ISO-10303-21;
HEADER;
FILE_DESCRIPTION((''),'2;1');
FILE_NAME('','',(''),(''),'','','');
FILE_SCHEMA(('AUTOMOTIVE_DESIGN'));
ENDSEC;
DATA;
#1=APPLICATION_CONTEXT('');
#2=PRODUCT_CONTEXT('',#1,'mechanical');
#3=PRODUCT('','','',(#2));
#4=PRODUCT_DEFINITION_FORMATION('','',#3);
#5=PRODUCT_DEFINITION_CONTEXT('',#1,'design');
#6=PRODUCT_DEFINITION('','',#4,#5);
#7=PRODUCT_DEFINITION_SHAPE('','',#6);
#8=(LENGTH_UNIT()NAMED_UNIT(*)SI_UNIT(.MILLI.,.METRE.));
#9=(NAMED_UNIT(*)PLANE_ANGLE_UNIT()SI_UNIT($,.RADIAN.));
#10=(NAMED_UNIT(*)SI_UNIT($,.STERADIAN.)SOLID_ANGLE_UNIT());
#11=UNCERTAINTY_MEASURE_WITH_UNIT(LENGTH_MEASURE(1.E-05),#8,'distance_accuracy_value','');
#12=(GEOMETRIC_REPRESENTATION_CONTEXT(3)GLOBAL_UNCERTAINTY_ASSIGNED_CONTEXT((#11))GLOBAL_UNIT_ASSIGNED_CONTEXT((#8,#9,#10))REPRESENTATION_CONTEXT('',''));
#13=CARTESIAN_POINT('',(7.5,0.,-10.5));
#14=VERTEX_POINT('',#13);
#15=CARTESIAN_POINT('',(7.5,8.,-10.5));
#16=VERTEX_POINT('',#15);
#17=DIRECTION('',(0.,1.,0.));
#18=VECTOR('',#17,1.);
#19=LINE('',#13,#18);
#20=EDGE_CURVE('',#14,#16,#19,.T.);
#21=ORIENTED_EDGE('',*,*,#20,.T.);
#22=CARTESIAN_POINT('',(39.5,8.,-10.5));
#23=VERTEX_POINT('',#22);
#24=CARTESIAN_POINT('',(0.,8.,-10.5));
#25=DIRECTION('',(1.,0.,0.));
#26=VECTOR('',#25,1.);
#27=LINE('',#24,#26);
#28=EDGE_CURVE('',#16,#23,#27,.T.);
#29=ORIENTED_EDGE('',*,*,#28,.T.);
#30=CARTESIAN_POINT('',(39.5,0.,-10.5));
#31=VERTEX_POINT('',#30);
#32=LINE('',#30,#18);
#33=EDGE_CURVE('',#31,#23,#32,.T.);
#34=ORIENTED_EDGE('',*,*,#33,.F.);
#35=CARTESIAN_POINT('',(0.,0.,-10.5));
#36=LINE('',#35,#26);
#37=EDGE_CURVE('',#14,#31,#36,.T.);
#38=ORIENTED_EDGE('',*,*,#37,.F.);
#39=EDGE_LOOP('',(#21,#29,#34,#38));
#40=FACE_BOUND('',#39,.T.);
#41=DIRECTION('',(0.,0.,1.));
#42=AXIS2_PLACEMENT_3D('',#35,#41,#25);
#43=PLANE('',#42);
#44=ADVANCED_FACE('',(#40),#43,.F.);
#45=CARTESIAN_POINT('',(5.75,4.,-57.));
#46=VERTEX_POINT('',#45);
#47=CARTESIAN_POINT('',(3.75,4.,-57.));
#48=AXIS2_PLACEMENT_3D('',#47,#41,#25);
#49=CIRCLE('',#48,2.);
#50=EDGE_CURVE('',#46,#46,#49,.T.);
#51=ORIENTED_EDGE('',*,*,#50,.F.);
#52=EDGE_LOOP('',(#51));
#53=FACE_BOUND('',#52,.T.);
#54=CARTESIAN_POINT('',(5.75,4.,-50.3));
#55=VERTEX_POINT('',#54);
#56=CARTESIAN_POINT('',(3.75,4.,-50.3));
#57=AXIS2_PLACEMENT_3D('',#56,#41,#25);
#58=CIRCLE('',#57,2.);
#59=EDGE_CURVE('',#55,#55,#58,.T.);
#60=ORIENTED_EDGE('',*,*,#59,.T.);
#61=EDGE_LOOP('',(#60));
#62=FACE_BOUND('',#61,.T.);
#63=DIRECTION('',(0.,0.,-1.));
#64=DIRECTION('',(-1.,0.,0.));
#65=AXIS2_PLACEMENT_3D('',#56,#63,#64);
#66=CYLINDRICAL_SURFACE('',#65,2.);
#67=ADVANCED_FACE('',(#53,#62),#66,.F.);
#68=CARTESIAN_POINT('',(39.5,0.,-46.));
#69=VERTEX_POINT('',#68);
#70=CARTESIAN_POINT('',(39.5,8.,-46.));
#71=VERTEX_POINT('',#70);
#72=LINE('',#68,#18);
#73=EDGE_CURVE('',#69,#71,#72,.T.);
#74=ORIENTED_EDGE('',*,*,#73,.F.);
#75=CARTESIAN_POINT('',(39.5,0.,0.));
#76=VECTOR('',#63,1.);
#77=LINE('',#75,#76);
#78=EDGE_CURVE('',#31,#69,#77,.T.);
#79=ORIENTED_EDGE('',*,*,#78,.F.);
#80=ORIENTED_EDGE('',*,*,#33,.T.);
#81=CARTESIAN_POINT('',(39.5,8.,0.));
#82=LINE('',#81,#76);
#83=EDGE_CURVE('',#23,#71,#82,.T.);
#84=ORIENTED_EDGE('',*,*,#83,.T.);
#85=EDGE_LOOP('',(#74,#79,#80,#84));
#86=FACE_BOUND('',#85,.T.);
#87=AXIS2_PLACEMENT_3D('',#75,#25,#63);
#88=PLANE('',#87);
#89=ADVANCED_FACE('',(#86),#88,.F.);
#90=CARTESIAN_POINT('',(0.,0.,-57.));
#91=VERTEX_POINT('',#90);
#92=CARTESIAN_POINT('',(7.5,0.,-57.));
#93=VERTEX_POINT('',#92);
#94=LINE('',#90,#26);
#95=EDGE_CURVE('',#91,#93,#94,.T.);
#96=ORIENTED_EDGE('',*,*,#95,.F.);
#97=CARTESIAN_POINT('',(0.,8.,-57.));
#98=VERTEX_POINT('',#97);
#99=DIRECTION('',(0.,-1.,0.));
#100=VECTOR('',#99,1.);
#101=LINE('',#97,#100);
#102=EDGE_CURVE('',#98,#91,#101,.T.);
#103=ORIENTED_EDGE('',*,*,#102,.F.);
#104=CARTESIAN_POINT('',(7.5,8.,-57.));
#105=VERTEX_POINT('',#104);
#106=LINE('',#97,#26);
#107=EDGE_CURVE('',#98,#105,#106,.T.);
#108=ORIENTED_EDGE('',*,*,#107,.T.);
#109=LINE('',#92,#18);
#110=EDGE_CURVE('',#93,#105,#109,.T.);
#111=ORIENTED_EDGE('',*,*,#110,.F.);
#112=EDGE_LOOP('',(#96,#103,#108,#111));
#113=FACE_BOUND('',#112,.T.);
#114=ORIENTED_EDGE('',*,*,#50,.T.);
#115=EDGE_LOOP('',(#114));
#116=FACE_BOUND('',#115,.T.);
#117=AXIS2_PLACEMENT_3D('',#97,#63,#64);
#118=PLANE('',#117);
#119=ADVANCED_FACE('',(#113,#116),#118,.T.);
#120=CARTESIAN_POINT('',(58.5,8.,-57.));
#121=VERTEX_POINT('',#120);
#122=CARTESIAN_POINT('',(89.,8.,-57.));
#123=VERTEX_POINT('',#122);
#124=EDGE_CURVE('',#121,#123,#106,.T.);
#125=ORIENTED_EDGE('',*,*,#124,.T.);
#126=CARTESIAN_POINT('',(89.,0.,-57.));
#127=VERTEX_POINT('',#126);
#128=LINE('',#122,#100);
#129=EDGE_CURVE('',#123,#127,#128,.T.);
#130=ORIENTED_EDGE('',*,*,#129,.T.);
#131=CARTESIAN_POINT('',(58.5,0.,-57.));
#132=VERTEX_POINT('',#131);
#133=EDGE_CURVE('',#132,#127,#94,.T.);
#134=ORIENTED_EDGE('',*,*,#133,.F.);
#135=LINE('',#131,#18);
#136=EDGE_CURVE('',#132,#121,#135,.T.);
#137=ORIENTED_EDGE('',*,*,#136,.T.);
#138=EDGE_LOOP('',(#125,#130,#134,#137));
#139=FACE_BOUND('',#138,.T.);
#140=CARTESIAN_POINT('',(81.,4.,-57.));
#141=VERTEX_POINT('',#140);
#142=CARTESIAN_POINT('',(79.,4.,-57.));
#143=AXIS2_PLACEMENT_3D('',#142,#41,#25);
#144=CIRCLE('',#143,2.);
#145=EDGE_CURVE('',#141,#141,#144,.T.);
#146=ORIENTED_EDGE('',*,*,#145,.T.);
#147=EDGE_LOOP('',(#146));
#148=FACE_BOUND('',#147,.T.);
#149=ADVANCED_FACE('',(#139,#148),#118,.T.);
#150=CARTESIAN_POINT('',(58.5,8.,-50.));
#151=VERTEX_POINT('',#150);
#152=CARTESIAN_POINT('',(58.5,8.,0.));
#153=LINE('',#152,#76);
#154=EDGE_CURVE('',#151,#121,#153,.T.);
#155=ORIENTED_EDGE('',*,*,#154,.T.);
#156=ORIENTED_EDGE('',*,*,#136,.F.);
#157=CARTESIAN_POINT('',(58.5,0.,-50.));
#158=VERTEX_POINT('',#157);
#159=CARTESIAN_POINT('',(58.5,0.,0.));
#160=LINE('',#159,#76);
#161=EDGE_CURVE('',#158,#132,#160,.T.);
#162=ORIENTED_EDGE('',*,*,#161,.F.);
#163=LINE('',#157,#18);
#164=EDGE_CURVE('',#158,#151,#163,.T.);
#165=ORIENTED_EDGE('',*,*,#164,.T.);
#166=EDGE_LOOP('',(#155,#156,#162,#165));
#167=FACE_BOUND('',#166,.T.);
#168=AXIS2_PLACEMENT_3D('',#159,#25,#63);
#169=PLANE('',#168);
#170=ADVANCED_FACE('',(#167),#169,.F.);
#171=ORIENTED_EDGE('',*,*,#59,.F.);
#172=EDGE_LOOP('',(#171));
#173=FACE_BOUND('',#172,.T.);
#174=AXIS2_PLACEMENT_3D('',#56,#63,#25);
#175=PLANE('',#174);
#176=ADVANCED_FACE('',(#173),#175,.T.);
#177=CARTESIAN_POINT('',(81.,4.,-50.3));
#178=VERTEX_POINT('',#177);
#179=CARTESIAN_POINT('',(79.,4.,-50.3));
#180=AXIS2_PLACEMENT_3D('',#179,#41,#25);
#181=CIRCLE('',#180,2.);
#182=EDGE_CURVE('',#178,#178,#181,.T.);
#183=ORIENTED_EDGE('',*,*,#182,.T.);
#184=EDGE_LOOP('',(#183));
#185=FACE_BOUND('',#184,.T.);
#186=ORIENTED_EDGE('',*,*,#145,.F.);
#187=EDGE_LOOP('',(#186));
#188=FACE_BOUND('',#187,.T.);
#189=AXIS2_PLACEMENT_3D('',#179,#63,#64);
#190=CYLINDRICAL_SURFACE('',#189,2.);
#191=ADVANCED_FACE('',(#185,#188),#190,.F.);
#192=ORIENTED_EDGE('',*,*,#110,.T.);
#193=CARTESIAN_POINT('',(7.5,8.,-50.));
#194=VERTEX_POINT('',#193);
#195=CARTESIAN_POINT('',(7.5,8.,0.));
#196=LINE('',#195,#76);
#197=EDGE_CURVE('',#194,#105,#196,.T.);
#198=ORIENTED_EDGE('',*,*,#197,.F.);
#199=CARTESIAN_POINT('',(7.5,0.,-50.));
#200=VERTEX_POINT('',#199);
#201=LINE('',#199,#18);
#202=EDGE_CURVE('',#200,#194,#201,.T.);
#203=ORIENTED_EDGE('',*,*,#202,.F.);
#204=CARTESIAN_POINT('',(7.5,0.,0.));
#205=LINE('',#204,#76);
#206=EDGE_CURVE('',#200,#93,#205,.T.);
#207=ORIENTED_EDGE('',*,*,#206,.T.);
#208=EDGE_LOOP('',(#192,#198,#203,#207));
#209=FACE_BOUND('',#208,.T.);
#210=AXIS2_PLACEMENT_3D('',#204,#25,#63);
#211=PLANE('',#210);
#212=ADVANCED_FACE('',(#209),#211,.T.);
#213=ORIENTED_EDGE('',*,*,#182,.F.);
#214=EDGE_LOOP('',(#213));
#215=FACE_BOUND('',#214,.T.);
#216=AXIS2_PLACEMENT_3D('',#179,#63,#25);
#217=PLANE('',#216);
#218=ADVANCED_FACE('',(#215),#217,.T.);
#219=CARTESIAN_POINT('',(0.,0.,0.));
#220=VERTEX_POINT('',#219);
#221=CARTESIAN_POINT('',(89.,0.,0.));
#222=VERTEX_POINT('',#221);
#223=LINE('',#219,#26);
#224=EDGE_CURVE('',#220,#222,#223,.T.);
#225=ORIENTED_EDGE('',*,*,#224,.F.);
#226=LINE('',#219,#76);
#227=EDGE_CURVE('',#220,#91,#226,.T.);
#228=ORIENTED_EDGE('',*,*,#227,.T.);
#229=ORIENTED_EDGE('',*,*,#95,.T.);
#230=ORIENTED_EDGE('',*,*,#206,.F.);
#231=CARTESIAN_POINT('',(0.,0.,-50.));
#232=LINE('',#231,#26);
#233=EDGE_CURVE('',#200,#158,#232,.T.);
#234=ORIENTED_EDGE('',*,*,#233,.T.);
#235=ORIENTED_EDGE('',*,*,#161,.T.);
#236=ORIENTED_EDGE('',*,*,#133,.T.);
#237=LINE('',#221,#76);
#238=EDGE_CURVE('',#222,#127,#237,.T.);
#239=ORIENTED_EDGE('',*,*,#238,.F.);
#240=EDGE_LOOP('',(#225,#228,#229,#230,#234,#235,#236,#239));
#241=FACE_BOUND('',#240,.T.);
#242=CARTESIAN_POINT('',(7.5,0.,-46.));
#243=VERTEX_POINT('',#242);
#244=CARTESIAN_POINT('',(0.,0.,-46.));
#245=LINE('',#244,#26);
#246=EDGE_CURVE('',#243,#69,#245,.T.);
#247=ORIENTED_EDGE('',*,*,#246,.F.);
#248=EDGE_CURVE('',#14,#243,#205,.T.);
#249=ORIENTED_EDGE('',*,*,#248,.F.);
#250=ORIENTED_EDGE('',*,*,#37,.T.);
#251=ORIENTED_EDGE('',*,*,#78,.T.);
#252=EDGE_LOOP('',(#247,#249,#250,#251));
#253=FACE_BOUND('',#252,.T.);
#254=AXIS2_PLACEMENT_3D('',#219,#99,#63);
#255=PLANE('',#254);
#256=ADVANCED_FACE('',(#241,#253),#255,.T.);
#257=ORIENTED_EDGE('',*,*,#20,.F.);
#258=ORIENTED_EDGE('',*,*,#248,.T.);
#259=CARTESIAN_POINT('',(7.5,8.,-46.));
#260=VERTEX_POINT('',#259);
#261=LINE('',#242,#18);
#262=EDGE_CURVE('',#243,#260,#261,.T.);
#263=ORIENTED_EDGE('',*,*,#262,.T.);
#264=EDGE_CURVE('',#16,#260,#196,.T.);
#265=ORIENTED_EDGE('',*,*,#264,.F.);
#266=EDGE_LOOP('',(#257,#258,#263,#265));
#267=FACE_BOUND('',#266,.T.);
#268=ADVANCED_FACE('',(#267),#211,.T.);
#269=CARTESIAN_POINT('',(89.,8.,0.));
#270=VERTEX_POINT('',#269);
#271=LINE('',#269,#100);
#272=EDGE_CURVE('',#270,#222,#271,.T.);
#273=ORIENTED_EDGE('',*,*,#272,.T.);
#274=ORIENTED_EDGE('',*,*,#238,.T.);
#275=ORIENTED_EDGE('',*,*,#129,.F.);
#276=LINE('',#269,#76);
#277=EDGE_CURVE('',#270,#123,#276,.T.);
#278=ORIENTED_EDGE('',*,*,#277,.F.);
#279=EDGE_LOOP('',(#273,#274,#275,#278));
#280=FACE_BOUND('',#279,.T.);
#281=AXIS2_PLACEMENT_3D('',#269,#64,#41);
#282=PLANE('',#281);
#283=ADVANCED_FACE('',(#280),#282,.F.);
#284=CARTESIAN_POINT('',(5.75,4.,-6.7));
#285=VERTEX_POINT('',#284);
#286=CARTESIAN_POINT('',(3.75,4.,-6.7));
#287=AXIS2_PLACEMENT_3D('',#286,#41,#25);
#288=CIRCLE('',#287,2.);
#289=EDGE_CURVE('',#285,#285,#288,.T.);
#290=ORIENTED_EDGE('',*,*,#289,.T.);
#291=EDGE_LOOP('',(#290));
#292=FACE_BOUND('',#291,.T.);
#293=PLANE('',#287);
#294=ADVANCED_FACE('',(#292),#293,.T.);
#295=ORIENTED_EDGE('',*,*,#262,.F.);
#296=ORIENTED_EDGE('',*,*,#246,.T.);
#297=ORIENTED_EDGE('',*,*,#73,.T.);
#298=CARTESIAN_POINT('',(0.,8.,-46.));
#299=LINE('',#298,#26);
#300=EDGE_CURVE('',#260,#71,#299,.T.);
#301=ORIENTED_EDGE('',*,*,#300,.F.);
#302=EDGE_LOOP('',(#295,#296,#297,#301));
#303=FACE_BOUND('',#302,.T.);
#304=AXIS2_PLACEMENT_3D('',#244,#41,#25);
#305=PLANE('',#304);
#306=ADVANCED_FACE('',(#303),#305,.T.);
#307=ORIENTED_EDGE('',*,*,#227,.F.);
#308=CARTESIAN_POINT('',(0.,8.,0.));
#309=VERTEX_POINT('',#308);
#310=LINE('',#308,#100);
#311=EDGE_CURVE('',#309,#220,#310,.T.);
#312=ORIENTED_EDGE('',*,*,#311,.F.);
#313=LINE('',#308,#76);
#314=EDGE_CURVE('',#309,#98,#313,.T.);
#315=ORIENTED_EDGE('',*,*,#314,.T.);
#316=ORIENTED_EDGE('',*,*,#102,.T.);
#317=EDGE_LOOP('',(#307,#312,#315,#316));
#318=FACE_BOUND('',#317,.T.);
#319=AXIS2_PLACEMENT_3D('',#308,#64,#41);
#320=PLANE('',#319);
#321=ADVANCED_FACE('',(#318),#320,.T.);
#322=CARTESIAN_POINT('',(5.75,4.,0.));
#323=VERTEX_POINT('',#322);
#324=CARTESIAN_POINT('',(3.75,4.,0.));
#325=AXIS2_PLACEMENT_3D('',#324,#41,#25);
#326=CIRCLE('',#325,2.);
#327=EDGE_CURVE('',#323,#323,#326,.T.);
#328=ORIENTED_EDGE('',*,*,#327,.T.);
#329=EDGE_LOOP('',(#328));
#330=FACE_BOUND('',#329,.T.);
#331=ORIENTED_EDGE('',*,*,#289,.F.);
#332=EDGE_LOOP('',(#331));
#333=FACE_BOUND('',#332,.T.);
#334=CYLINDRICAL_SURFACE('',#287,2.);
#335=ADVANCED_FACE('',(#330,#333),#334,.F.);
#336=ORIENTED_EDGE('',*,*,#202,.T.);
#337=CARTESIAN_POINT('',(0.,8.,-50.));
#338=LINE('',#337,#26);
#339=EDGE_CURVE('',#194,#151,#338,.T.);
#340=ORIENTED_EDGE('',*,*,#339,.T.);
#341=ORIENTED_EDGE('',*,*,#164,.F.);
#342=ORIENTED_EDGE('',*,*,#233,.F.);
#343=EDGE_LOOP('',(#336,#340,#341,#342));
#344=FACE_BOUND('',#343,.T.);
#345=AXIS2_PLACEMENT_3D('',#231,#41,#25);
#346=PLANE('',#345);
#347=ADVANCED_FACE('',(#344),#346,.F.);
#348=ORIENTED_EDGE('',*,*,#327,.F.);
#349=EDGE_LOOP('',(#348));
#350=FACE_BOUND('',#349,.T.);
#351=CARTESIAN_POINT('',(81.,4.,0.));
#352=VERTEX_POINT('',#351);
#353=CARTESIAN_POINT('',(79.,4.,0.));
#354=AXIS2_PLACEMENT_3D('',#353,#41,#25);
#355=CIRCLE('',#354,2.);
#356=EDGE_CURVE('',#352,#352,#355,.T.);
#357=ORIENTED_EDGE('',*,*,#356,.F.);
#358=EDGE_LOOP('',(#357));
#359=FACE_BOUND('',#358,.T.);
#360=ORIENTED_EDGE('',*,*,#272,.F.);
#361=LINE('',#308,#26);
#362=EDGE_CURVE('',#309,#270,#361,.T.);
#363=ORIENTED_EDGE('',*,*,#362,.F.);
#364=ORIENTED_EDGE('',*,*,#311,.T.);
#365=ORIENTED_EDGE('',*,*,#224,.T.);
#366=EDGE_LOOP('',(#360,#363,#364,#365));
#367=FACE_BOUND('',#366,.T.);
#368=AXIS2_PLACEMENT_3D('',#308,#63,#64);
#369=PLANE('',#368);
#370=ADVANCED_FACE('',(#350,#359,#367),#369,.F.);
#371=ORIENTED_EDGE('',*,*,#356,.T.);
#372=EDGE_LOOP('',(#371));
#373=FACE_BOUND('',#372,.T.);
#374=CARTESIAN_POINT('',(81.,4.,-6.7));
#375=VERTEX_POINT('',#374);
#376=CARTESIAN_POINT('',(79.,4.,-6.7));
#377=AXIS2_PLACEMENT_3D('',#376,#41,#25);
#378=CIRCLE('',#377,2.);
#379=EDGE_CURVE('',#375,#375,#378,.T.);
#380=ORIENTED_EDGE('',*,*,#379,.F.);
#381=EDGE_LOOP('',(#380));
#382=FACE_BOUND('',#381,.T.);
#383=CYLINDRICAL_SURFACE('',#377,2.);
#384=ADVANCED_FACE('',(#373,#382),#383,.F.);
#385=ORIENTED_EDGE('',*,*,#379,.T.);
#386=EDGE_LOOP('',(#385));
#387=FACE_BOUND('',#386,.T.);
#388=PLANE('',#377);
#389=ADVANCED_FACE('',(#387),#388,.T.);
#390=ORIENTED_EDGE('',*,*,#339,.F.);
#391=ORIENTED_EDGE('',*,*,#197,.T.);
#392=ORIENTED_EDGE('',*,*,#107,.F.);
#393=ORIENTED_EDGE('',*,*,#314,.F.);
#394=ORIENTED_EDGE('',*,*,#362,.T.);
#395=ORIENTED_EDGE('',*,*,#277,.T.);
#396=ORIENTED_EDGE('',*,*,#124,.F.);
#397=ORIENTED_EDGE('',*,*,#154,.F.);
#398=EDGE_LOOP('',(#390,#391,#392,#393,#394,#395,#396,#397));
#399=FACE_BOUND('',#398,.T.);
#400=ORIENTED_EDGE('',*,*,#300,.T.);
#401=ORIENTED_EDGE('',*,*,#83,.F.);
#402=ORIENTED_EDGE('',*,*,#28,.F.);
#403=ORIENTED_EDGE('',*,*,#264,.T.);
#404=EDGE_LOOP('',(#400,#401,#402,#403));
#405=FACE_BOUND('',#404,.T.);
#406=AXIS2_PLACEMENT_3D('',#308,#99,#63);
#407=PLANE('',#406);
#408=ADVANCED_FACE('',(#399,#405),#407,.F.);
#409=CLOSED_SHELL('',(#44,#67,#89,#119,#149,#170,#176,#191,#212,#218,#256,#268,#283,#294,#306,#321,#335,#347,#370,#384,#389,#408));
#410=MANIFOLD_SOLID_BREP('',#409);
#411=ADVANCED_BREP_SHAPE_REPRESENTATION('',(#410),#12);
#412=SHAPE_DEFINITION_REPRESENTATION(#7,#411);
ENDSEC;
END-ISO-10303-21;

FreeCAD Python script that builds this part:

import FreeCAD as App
import Part
import Sketcher
Q = App.Units.Quantity


def add_polygon(sketch, points):
    """Adds a closed chain of lines whose ends are joined by coincident constraints."""
    first, n = sketch.GeometryCount, len(points)
    for a, b in zip(points, points[1:] + points[:1]):
        sketch.addGeometry(Part.LineSegment(App.Vector(*a, 0), App.Vector(*b, 0)), False)
    for i in range(n):
        sketch.addConstraint(Sketcher.Constraint("Coincident", first + i, 2, first + (i + 1) % n, 1))

doc = App.newDocument("Part")
body = doc.addObject("PartDesign::Body", "Body")

# Sketch on XZ plane
sketch1 = doc.addObject("Sketcher::SketchObject", "Sketch")
body.addObject(sketch1)
sketch1.AttachmentSupport = (doc.XZ_Plane, [""])
sketch1.MapMode = "FlatFace"
add_polygon(sketch1, [(0, -57), (0, 0), (89, 0), (89, -57)])  # lines 0-3
sketch1.addConstraint(Sketcher.Constraint("Vertical", 0))
sketch1.addConstraint(Sketcher.Constraint("Horizontal", 1))
sketch1.addConstraint(Sketcher.Constraint("Vertical", 2))
sketch1.addConstraint(Sketcher.Constraint("Horizontal", 3))
sketch1.addConstraint(Sketcher.Constraint("Coincident", 0, 2, -1, 1))
sketch1.addConstraint(Sketcher.Constraint("DistanceX", 1, 1, 1, 2, Q("89 mm")))
sketch1.addConstraint(Sketcher.Constraint("DistanceY", 0, 1, 0, 2, Q("57 mm")))
pad1 = doc.addObject("PartDesign::Pad", "Pad")
body.addObject(pad1)
pad1.Profile = sketch1
pad1.Length = 8
pad1.Reversed = True

# Sketch on XZ plane
sketch2 = doc.addObject("Sketcher::SketchObject", "Sketch001")
body.addObject(sketch2)
sketch2.AttachmentSupport = (doc.XZ_Plane, [""])
sketch2.MapMode = "FlatFace"
sketch2.AttachmentOffset = App.Placement(App.Vector(0, 0, -8), App.Rotation())
add_polygon(sketch2, [(7.5, -46), (7.5, -10.5), (39.5, -10.5), (39.5, -46)])  # lines 0-3
add_polygon(sketch2, [(7.5, -50), (58.5, -50), (58.5, -57), (7.5, -57)])  # lines 4-7
sketch2.addConstraint(Sketcher.Constraint("Vertical", 0))
sketch2.addConstraint(Sketcher.Constraint("Horizontal", 1))
sketch2.addConstraint(Sketcher.Constraint("Vertical", 2))
sketch2.addConstraint(Sketcher.Constraint("Horizontal", 3))
sketch2.addConstraint(Sketcher.Constraint("Horizontal", 4))
sketch2.addConstraint(Sketcher.Constraint("Vertical", 5))
sketch2.addConstraint(Sketcher.Constraint("Horizontal", 6))
sketch2.addConstraint(Sketcher.Constraint("Vertical", 7))
sketch2.addConstraint(Sketcher.Constraint("Vertical", 3, 2, 6, 2))
sketch2.addConstraint(Sketcher.Constraint("DistanceX", 1, 1, 1, 2, Q("32 mm")))
sketch2.addConstraint(Sketcher.Constraint("DistanceX", 4, 1, 4, 2, Q("51 mm")))
sketch2.addConstraint(Sketcher.Constraint("DistanceY", 5, 2, 5, 1, Q("7 mm")))
sketch2.addConstraint(Sketcher.Constraint("DistanceY", 0, 1, 0, 2, Q("35.5 mm")))
sketch2.addConstraint(Sketcher.Constraint("DistanceY", 2, 2, -1, 1, Q("46 mm")))
sketch2.addConstraint(Sketcher.Constraint("DistanceY", 4, 2, -1, 1, Q("50 mm")))
sketch2.addConstraint(Sketcher.Constraint("DistanceX", -1, 1, 0, 2, Q("7.5 mm")))
pocket1 = doc.addObject("PartDesign::Pocket", "Pocket")
body.addObject(pocket1)
pocket1.Profile = sketch2
pocket1.Type = "ThroughAll"
pocket1.Reversed = True

# Sketch on XY plane
sketch3 = doc.addObject("Sketcher::SketchObject", "Sketch002")
body.addObject(sketch3)
sketch3.AttachmentSupport = (doc.XY_Plane, [""])
sketch3.MapMode = "FlatFace"
sketch3.addGeometry(Part.Circle(App.Vector(3.75, 4, 0), App.Vector(0, 0, 1), 2), False)
sketch3.addGeometry(Part.Circle(App.Vector(79, 4, 0), App.Vector(0, 0, 1), 2), False)
sketch3.addConstraint(Sketcher.Constraint("Equal", 0, 1))
sketch3.addConstraint(Sketcher.Constraint("Horizontal", 0, 3, 1, 3))
sketch3.addConstraint(Sketcher.Constraint("Diameter", 0, Q("4 mm")))
sketch3.addConstraint(Sketcher.Constraint("DistanceY", -1, 1, 0, 3, Q("4 mm")))
sketch3.addConstraint(Sketcher.Constraint("DistanceX", -1, 1, 1, 3, Q("79 mm")))
sketch3.addConstraint(Sketcher.Constraint("DistanceX", -1, 1, 0, 3, Q("3.75 mm")))
pocket2 = doc.addObject("PartDesign::Pocket", "Pocket001")
body.addObject(pocket2)
pocket2.Profile = sketch3
pocket2.Length = 6.7
doc.recompute()

datumplane = doc.addObject("PartDesign::Plane", "DatumPlane")
body.addObject(datumplane)
datumplane.AttachmentSupport = (doc.XY_Plane, [""])
datumplane.MapMode = "FlatFace"
datumplane.AttachmentOffset = App.Placement(App.Vector(0, 0, -28.5), App.Rotation())
mirrored = doc.addObject("PartDesign::Mirrored", "Mirrored")
body.addObject(mirrored)
mirrored.Originals = [pocket2]
mirrored.MirrorPlane = (datumplane, [""])
body.Tip = mirrored

doc.recompute()
